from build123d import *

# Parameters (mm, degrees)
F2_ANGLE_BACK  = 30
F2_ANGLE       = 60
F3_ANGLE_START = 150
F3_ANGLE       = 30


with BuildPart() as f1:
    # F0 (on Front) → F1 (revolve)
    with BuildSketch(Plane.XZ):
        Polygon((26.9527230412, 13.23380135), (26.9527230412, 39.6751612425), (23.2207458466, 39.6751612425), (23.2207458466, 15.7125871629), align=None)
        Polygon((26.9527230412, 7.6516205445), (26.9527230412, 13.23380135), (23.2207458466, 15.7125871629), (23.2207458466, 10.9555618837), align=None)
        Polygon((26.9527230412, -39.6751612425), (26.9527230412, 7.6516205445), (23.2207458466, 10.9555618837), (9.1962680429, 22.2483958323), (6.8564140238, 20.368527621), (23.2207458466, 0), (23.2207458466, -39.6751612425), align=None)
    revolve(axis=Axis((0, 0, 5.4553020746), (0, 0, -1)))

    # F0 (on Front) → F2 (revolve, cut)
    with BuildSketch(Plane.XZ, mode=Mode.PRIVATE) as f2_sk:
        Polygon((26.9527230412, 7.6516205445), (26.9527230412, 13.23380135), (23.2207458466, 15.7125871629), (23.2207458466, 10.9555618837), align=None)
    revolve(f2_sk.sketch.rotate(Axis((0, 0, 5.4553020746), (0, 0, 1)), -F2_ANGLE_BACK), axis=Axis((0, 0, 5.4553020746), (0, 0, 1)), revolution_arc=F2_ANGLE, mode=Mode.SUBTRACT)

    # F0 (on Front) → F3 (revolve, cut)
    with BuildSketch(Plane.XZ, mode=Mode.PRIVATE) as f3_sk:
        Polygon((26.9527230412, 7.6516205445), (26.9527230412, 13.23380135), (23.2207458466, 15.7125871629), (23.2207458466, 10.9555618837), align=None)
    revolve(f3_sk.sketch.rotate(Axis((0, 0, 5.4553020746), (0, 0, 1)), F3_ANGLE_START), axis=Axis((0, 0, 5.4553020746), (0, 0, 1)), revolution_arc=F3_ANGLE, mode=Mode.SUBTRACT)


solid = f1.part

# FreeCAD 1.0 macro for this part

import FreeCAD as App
import Part
import Sketcher

V = App.Vector

doc = App.newDocument("Part")
params = doc.addObject("Spreadsheet::Sheet", "Params")
for row, (alias, value) in enumerate([
    ("revolution_angle", "360 deg"),
    ("groove_angle", "60 deg"),
    ("groove2_angle", "30 deg"),
], start=1):
    params.set(f"A{row}", alias)
    params.set(f"B{row}", "=" + value)
    params.setAlias(f"B{row}", alias)

body = doc.addObject("PartDesign::Body", "Body")

sketch1 = doc.addObject("Sketcher::SketchObject", "Sketch")
body.addObject(sketch1)
sketch1.AttachmentSupport = (doc.XZ_Plane, [""])
sketch1.MapMode = "FlatFace"
sketch1.addGeometry([
    Part.LineSegment(V(27, 39.7, 0), V(23.2, 39.7, 0)),
    Part.LineSegment(V(23.2, 39.7, 0), V(23.2, 11, 0)),
    Part.LineSegment(V(23.2, 11, 0), V(9.2, 22.2, 0)),
    Part.LineSegment(V(9.2, 22.2, 0), V(6.9, 20.4, 0)),
    Part.LineSegment(V(6.9, 20.4, 0), V(23.2, 0, 0)),
    Part.LineSegment(V(23.2, 0, 0), V(23.2, -39.7, 0)),
    Part.LineSegment(V(23.2, -39.7, 0), V(27, -39.7, 0)),
    Part.LineSegment(V(27, -39.7, 0), V(27, 39.7, 0)),
], False)
sketch1.addConstraint([
    Sketcher.Constraint("Coincident", 0, 2, 1, 1),
    Sketcher.Constraint("Coincident", 1, 2, 2, 1),
    Sketcher.Constraint("Coincident", 2, 2, 3, 1),
    Sketcher.Constraint("Coincident", 3, 2, 4, 1),
    Sketcher.Constraint("Coincident", 4, 2, 5, 1),
    Sketcher.Constraint("Coincident", 5, 2, 6, 1),
    Sketcher.Constraint("Coincident", 6, 2, 7, 1),
    Sketcher.Constraint("Coincident", 7, 2, 0, 1),
    Sketcher.Constraint("Horizontal", 0),
    Sketcher.Constraint("Vertical", 1),
    Sketcher.Constraint("Vertical", 5),
    Sketcher.Constraint("Horizontal", 6),
    Sketcher.Constraint("Vertical", 7),
    Sketcher.Constraint("Symmetric", 0, 2, 5, 2, -1),
    Sketcher.Constraint("PointOnObject", 4, 2, -1),
    Sketcher.Constraint("Perpendicular", 3, 4),
    Sketcher.Constraint("DistanceY", 1, 2, 1, 1, 28.719599),
    Sketcher.Constraint("DistanceY", 5, 2, 5, 1, 39.675161),
    Sketcher.Constraint("Distance", 3, 3.00147),
    Sketcher.Constraint("Distance", 4, 26.127921),
    Sketcher.Constraint("DistanceX", 0, 2, 0, 1, 3.731977),
    Sketcher.Constraint("DistanceX", -1, 1, 2, 2, 9.196268),
    Sketcher.Constraint("DistanceY", 3, 2, 2, 2, 1.879868),
])
revolution = doc.addObject("PartDesign::Revolution", "Revolution")
body.addObject(revolution)
revolution.Profile = sketch1
revolution.ReferenceAxis = (sketch1, ["V_Axis"])
revolution.setExpression("Angle", "Params.revolution_angle")

sketch2 = doc.addObject("Sketcher::SketchObject", "Sketch001")
body.addObject(sketch2)
sketch2.Placement = App.Placement(V(0, 0, 0), App.Rotation(V(0.866025404, -0.5, 0), V(0, 0, 1), V(-0.5, -0.866025404, 0), "ZXY"))
sketch2.addGeometry([
    Part.LineSegment(V(27, 7.7, 0), V(27, 13.2, 0)),
    Part.LineSegment(V(27, 13.2, 0), V(23.2, 15.7, 0)),
    Part.LineSegment(V(23.2, 15.7, 0), V(23.2, 11, 0)),
    Part.LineSegment(V(23.2, 11, 0), V(27, 7.7, 0)),
], False)
sketch2.addConstraint([
    Sketcher.Constraint("Coincident", 0, 2, 1, 1),
    Sketcher.Constraint("Coincident", 1, 2, 2, 1),
    Sketcher.Constraint("Coincident", 2, 2, 3, 1),
    Sketcher.Constraint("Coincident", 3, 2, 0, 1),
    Sketcher.Constraint("Vertical", 0),
    Sketcher.Constraint("Vertical", 2),
    Sketcher.Constraint("DistanceY", 0, 1, 0, 2, 5.582181),
    Sketcher.Constraint("DistanceY", -1, 1, 0, 2, 13.233801),
    Sketcher.Constraint("DistanceY", 2, 2, 2, 1, 4.757025),
    Sketcher.Constraint("DistanceY", -1, 1, 2, 2, 10.955562),
    Sketcher.Constraint("Distance", 1, 4.480182),
    Sketcher.Constraint("DistanceX", -1, 1, 0, 2, 26.952723),
])
groove = doc.addObject("PartDesign::Groove", "Groove")
body.addObject(groove)
groove.Profile = sketch2
groove.ReferenceAxis = (sketch2, ["V_Axis"])
groove.setExpression("Angle", "Params.groove_angle")

sketch3 = doc.addObject("Sketcher::SketchObject", "Sketch002")
body.addObject(sketch3)
sketch3.Placement = App.Placement(V(0, 0, 0), App.Rotation(V(-0.866025404, 0.5, 0), V(0, 0, 1), V(0.5, 0.866025404, 0), "ZXY"))
sketch3.addGeometry([
    Part.LineSegment(V(27, 7.7, 0), V(27, 13.2, 0)),
    Part.LineSegment(V(27, 13.2, 0), V(23.2, 15.7, 0)),
    Part.LineSegment(V(23.2, 15.7, 0), V(23.2, 11, 0)),
    Part.LineSegment(V(23.2, 11, 0), V(27, 7.7, 0)),
], False)
sketch3.addConstraint([
    Sketcher.Constraint("Coincident", 0, 2, 1, 1),
    Sketcher.Constraint("Coincident", 1, 2, 2, 1),
    Sketcher.Constraint("Coincident", 2, 2, 3, 1),
    Sketcher.Constraint("Coincident", 3, 2, 0, 1),
    Sketcher.Constraint("Vertical", 0),
    Sketcher.Constraint("Vertical", 2),
    Sketcher.Constraint("DistanceY", 0, 1, 0, 2, 5.582181),
    Sketcher.Constraint("DistanceY", -1, 1, 0, 2, 13.233801),
    Sketcher.Constraint("DistanceY", 2, 2, 2, 1, 4.757025),
    Sketcher.Constraint("DistanceY", -1, 1, 2, 2, 10.955562),
    Sketcher.Constraint("Distance", 1, 4.480182),
    Sketcher.Constraint("DistanceX", -1, 1, 0, 2, 26.952723),
])
groove2 = doc.addObject("PartDesign::Groove", "Groove001")
body.addObject(groove2)
groove2.Profile = sketch3
groove2.ReferenceAxis = (sketch3, ["V_Axis"])
groove2.setExpression("Angle", "Params.groove2_angle")

doc.recompute()
